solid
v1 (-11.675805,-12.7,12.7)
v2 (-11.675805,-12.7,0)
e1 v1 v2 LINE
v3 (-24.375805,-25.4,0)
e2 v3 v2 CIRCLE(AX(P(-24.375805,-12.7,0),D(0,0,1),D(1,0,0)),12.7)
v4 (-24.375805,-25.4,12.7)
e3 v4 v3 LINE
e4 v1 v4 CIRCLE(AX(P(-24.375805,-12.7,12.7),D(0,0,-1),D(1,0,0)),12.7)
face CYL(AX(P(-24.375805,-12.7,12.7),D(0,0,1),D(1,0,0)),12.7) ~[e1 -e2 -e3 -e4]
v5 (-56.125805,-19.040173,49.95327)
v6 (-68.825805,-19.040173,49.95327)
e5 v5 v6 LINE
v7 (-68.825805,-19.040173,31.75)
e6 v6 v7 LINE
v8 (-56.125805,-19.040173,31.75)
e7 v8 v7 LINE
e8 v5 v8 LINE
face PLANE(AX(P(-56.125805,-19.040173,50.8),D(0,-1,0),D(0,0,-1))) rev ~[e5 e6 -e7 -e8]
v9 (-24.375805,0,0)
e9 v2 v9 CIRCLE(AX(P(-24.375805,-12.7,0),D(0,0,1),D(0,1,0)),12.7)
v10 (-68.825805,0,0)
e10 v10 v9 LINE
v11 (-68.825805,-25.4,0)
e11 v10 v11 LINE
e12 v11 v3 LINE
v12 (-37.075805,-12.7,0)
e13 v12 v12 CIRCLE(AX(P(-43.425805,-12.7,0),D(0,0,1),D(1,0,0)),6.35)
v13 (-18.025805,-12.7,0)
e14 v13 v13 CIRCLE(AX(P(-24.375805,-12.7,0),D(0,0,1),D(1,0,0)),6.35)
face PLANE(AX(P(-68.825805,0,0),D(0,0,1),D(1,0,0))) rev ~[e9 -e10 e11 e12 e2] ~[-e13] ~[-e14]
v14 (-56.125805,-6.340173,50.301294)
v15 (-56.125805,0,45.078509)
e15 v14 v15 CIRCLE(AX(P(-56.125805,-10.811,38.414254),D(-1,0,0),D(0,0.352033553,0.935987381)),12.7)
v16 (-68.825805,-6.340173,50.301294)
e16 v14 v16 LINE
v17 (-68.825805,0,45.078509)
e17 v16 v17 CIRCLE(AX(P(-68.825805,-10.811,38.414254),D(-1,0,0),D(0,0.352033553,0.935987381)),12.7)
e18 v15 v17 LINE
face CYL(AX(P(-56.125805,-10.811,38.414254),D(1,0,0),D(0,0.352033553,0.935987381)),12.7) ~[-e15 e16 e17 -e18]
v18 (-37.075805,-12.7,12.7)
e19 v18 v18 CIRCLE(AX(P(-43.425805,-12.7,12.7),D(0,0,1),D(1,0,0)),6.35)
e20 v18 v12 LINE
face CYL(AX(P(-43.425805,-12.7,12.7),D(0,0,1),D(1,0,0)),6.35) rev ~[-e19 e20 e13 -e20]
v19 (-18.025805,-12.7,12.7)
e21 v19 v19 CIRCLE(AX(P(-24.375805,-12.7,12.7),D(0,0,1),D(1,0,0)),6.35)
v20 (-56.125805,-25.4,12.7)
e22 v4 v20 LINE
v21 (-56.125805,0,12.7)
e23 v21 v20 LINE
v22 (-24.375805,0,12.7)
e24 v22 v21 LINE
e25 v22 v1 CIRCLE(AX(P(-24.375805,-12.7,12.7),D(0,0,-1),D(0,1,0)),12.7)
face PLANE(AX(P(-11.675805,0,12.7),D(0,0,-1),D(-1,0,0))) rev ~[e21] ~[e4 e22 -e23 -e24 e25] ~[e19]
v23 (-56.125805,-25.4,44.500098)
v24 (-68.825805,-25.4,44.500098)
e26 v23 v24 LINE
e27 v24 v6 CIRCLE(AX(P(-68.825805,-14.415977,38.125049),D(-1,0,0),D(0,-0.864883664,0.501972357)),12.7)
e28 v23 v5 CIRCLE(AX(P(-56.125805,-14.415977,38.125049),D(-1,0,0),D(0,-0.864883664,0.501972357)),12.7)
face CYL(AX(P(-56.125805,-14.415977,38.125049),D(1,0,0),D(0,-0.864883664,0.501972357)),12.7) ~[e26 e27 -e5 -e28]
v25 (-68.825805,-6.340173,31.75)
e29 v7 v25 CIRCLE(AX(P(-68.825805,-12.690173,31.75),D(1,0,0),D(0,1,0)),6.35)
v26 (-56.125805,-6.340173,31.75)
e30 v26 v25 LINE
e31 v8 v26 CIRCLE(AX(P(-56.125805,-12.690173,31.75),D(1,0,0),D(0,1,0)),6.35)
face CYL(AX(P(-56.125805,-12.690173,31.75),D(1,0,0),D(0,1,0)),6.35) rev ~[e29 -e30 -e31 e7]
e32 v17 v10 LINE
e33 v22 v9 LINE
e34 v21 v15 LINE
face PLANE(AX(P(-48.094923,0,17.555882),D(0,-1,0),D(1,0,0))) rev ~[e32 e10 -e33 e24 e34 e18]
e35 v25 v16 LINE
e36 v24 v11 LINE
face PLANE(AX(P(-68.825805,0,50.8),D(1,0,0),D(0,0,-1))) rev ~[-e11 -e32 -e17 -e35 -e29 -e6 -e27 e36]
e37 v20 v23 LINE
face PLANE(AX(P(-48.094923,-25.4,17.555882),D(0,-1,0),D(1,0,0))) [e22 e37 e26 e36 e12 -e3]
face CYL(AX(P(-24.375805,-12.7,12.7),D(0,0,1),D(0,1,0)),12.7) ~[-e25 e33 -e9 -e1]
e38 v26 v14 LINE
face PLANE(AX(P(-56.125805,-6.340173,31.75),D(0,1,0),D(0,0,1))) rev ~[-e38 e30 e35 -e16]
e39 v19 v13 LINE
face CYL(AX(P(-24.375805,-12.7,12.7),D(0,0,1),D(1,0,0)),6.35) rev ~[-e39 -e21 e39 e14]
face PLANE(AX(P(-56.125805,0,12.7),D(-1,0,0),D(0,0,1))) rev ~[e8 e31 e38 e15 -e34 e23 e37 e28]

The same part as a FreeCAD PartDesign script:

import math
import FreeCAD as App
import Part
import Sketcher
from FreeCAD import Vector
Q = App.Units.Quantity


def add_polygon(sketch, points):
    """Adds a closed chain of lines whose ends are joined by coincident constraints."""
    first, n = sketch.GeometryCount, len(points)
    for a, b in zip(points, points[1:] + points[:1]):
        sketch.addGeometry(Part.LineSegment(App.Vector(*a, 0), App.Vector(*b, 0)), False)
    for i in range(n):
        sketch.addConstraint(Sketcher.Constraint("Coincident", first + i, 2, first + (i + 1) % n, 1))

doc = App.newDocument("Part")
body = doc.addObject("PartDesign::Body", "Body")

# Sketch on XZ plane
sketch1 = body.newObject("Sketcher::SketchObject", "Sketch")
sketch1.AttachmentSupport = (doc.getObject("XZ_Plane"), [""])
sketch1.MapMode = "FlatFace"
add_polygon(sketch1, [(-56.125805, 50.8), (-68.825805, 50.8), (-68.825805, 0), (-11.675805, 0), (-11.675805, 12.7), (-56.125805, 12.7)])  # lines 0-5
sketch1.addConstraint(Sketcher.Constraint("Horizontal", 0))
sketch1.addConstraint(Sketcher.Constraint("Vertical", 1))
sketch1.addConstraint(Sketcher.Constraint("Horizontal", 2))
sketch1.addConstraint(Sketcher.Constraint("Vertical", 3))
sketch1.addConstraint(Sketcher.Constraint("Horizontal", 4))
sketch1.addConstraint(Sketcher.Constraint("Vertical", 5))
sketch1.addConstraint(Sketcher.Constraint("PointOnObject", 1, 2, -1))
sketch1.addConstraint(Sketcher.Constraint("Equal", 0, 3))
sketch1.addConstraint(Sketcher.Constraint("DistanceY", 1, 2, 1, 1, Q("2 in")))
sketch1.addConstraint(Sketcher.Constraint("DistanceX", 0, 2, 0, 1, Q("0.5 in")))
sketch1.addConstraint(Sketcher.Constraint("DistanceX", 2, 1, 2, 2, Q("2.25 in")))
sketch1.addConstraint(Sketcher.Constraint("DistanceX", 0, 2, -1, 1, Q("68.825805 mm")))
pad1 = body.newObject("PartDesign::Pad", "Pad")
pad1.Profile = sketch1
pad1.Length = Q("1 in")

# Sketch on XY plane
sketch2 = body.newObject("Sketcher::SketchObject", "Sketch001")
sketch2.AttachmentSupport = (doc.getObject("XY_Plane"), [""])
sketch2.MapMode = "FlatFace"
sketch2.AttachmentOffset = App.Placement(Vector(0, 0, 0.5 * 25.4), App.Rotation())
sketch2.addGeometry(Part.Circle(Vector(-43.425805, -12.7, 0), Vector(0, 0, 1), 6.35), False)
sketch2.addGeometry(Part.Circle(Vector(-24.375805, -12.7, 0), Vector(0, 0, 1), 6.35), False)
sketch2.addConstraint(Sketcher.Constraint("Equal", 0, 1))
sketch2.addConstraint(Sketcher.Constraint("Horizontal", 0, 3, 1, 3))
sketch2.addConstraint(Sketcher.Constraint("Diameter", 0, Q("0.5 in")))
sketch2.addConstraint(Sketcher.Constraint("DistanceY", 0, 3, -1, 1, Q("0.5 in")))
sketch2.addConstraint(Sketcher.Constraint("DistanceX", 0, 3, 1, 3, Q("0.75 in")))
sketch2.addConstraint(Sketcher.Constraint("DistanceX", 0, 3, -1, 1, Q("43.425805 mm")))
pocket1 = body.newObject("PartDesign::Pocket", "Pocket")
pocket1.Profile = sketch2
pocket1.Length = Q("0.5 in")

# Sketch on XY plane
sketch3 = body.newObject("Sketcher::SketchObject", "Sketch002")
sketch3.AttachmentSupport = (doc.getObject("XY_Plane"), [""])
sketch3.MapMode = "FlatFace"
sketch3.AttachmentOffset = App.Placement(Vector(0, 0, 0.5 * 25.4), App.Rotation())
sketch3.addGeometry(Part.ArcOfCircle(Part.Circle(Vector(-24.375805, -12.7, 0), Vector(0, 0, 1), 12.7), math.radians(0), math.radians(90)), False)
sketch3.addGeometry(Part.LineSegment(Vector(-11.675805, -12.7, 0), Vector(-11.675805, 0, 0)), False)
sketch3.addGeometry(Part.LineSegment(Vector(-11.675805, 0, 0), Vector(-24.375805, 0, 0)), False)
sketch3.addGeometry(Part.LineSegment(Vector(-11.675805, -25.4, 0), Vector(-11.675805, -12.7, 0)), False)
sketch3.addGeometry(Part.ArcOfCircle(Part.Circle(Vector(-24.375805, -12.7, 0), Vector(0, 0, 1), 12.7), math.radians(-90), math.radians(0)), False)
sketch3.addGeometry(Part.LineSegment(Vector(-24.375805, -25.4, 0), Vector(-11.675805, -25.4, 0)), False)
sketch3.addConstraint(Sketcher.Constraint("Tangent", 0, 1, 1, 1))
sketch3.addConstraint(Sketcher.Constraint("Coincident", 1, 2, 2, 1))
sketch3.addConstraint(Sketcher.Constraint("Tangent", 2, 2, 0, 2))
sketch3.addConstraint(Sketcher.Constraint("Tangent", 3, 2, 4, 2))
sketch3.addConstraint(Sketcher.Constraint("Tangent", 4, 1, 5, 1))
sketch3.addConstraint(Sketcher.Constraint("Coincident", 5, 2, 3, 1))
sketch3.addConstraint(Sketcher.Constraint("Vertical", 1))
sketch3.addConstraint(Sketcher.Constraint("Horizontal", 2))
sketch3.addConstraint(Sketcher.Constraint("Vertical", 3))
sketch3.addConstraint(Sketcher.Constraint("Horizontal", 5))
sketch3.addConstraint(Sketcher.Constraint("Coincident", 4, 3, 0, 3))
sketch3.addConstraint(Sketcher.Constraint("Equal", 0, 4))
sketch3.addConstraint(Sketcher.Constraint("PointOnObject", 1, 2, -1))
sketch3.addConstraint(Sketcher.Constraint("Radius", 0, Q("0.5 in")))
sketch3.addConstraint(Sketcher.Constraint("DistanceX", 0, 3, -1, 1, Q("24.375805 mm")))
pocket2 = body.newObject("PartDesign::Pocket", "Pocket001")
pocket2.Profile = sketch3
pocket2.Length = Q("1 in")

# Sketch on YZ plane
sketch4 = body.newObject("Sketcher::SketchObject", "Sketch003")
sketch4.AttachmentSupport = (doc.getObject("YZ_Plane"), [""])
sketch4.MapMode = "FlatFace"
sketch4.AttachmentOffset = App.Placement(Vector(0, 0, -56.125805), App.Rotation())
sketch4.addGeometry(Part.LineSegment(Vector(-6.340173, 31.75, 0), Vector(-6.340173, 50.8, 0)), False)
sketch4.addGeometry(Part.LineSegment(Vector(-6.340173, 50.8, 0), Vector(-19.040173, 50.8, 0)), False)
sketch4.addGeometry(Part.LineSegment(Vector(-19.040173, 50.8, 0), Vector(-19.040173, 31.75, 0)), False)
sketch4.addGeometry(Part.ArcOfCircle(Part.Circle(Vector(-12.690173, 31.75, 0), Vector(0, 0, 1), 6.35), math.radians(180), math.radians(360)), False)
sketch4.addConstraint(Sketcher.Constraint("Coincident", 0, 2, 1, 1))
sketch4.addConstraint(Sketcher.Constraint("Coincident", 1, 2, 2, 1))
sketch4.addConstraint(Sketcher.Constraint("Tangent", 2, 2, 3, 1))
sketch4.addConstraint(Sketcher.Constraint("Tangent", 3, 2, 0, 1))
sketch4.addConstraint(Sketcher.Constraint("Vertical", 0))
sketch4.addConstraint(Sketcher.Constraint("Horizontal", 1))
sketch4.addConstraint(Sketcher.Constraint("Vertical", 2))
sketch4.addConstraint(Sketcher.Constraint("Radius", 3, Q("0.25 in")))
sketch4.addConstraint(Sketcher.Constraint("DistanceY", -1, 1, 0, 2, Q("2 in")))
sketch4.addConstraint(Sketcher.Constraint("DistanceY", 0, 1, 0, 2, Q("0.75 in")))
sketch4.addConstraint(Sketcher.Constraint("DistanceX", 3, 3, -1, 1, Q("12.690173 mm")))
pocket3 = body.newObject("PartDesign::Pocket", "Pocket002")
pocket3.Profile = sketch4
pocket3.Length = Q("0.5 in")

# Sketch on YZ plane
sketch5 = body.newObject("Sketcher::SketchObject", "Sketch004")
sketch5.AttachmentSupport = (doc.getObject("YZ_Plane"), [""])
sketch5.MapMode = "FlatFace"
sketch5.AttachmentOffset = App.Placement(Vector(0, 0, -56.125805), App.Rotation())
sketch5.addGeometry(Part.ArcOfCircle(Part.Circle(Vector(-14.415977, 38.125049, 0), Vector(0, 0, 1), 12.7), math.radians(111.352816), math.radians(149.869424)), False)
sketch5.addGeometry(Part.LineSegment(Vector(-19.040173, 49.95327, 0), Vector(-19.040173, 50.8, 0)), False)
sketch5.addGeometry(Part.LineSegment(Vector(-19.040173, 50.8, 0), Vector(-25.4, 50.8, 0)), False)
sketch5.addGeometry(Part.LineSegment(Vector(-25.4, 50.8, 0), Vector(-25.4, 44.500098, 0)), False)
sketch5.addGeometry(Part.LineSegment(Vector(-6.340173, 50.8, 0), Vector(-6.340173, 50.301294, 0)), False)
sketch5.addGeometry(Part.ArcOfCircle(Part.Circle(Vector(-10.811, 38.414254, 0), Vector(0, 0, 1), 12.7), math.radians(31.651041), math.radians(69.388253)), False)
sketch5.addGeometry(Part.LineSegment(Vector(0, 45.078509, 0), Vector(0, 50.8, 0)), False)
sketch5.addGeometry(Part.LineSegment(Vector(0, 50.8, 0), Vector(-6.340173, 50.8, 0)), False)
sketch5.addConstraint(Sketcher.Constraint("Coincident", 0, 1, 1, 1))
sketch5.addConstraint(Sketcher.Constraint("Coincident", 1, 2, 2, 1))
sketch5.addConstraint(Sketcher.Constraint("Coincident", 2, 2, 3, 1))
sketch5.addConstraint(Sketcher.Constraint("Coincident", 3, 2, 0, 2))
sketch5.addConstraint(Sketcher.Constraint("Coincident", 4, 2, 5, 2))
sketch5.addConstraint(Sketcher.Constraint("Coincident", 5, 1, 6, 1))
sketch5.addConstraint(Sketcher.Constraint("Coincident", 6, 2, 7, 1))
sketch5.addConstraint(Sketcher.Constraint("Coincident", 7, 2, 4, 1))
sketch5.addConstraint(Sketcher.Constraint("Vertical", 1))
sketch5.addConstraint(Sketcher.Constraint("Horizontal", 2))
sketch5.addConstraint(Sketcher.Constraint("Vertical", 3))
sketch5.addConstraint(Sketcher.Constraint("Vertical", 4))
sketch5.addConstraint(Sketcher.Constraint("Vertical", 6))
sketch5.addConstraint(Sketcher.Constraint("Horizontal", 7))
sketch5.addConstraint(Sketcher.Constraint("Equal", 0, 5))
sketch5.addConstraint(Sketcher.Constraint("PointOnObject", 5, 1, -2))
sketch5.addConstraint(Sketcher.Constraint("Horizontal", 2, 2, 6, 2))
sketch5.addConstraint(Sketcher.Constraint("Radius", 0, Q("0.5 in")))
sketch5.addConstraint(Sketcher.Constraint("DistanceY", -1, 1, 1, 2, Q("2 in")))
sketch5.addConstraint(Sketcher.Constraint("DistanceX", 2, 2, -1, 1, Q("1 in")))
sketch5.addConstraint(Sketcher.Constraint("DistanceX", 0, 1, 4, 2, Q("0.5 in")))
sketch5.addConstraint(Sketcher.Constraint("DistanceY", 5, 3, 3, 2, Q("0.2396001 in")))
sketch5.addConstraint(Sketcher.Constraint("DistanceY", 1, 1, 1, 2, Q("0.84673 mm")))
sketch5.addConstraint(Sketcher.Constraint("DistanceY", 6, 1, 6, 2, Q("5.721491 mm")))
sketch5.addConstraint(Sketcher.Constraint("DistanceX", 5, 3, -1, 1, Q("10.811 mm")))
sketch5.addConstraint(Sketcher.Constraint("DistanceX", 2, 2, 2, 1, Q("6.359827 mm")))
pocket4 = body.newObject("PartDesign::Pocket", "Pocket003")
pocket4.Profile = sketch5
pocket4.Length = Q("0.5 in")

doc.recompute()
